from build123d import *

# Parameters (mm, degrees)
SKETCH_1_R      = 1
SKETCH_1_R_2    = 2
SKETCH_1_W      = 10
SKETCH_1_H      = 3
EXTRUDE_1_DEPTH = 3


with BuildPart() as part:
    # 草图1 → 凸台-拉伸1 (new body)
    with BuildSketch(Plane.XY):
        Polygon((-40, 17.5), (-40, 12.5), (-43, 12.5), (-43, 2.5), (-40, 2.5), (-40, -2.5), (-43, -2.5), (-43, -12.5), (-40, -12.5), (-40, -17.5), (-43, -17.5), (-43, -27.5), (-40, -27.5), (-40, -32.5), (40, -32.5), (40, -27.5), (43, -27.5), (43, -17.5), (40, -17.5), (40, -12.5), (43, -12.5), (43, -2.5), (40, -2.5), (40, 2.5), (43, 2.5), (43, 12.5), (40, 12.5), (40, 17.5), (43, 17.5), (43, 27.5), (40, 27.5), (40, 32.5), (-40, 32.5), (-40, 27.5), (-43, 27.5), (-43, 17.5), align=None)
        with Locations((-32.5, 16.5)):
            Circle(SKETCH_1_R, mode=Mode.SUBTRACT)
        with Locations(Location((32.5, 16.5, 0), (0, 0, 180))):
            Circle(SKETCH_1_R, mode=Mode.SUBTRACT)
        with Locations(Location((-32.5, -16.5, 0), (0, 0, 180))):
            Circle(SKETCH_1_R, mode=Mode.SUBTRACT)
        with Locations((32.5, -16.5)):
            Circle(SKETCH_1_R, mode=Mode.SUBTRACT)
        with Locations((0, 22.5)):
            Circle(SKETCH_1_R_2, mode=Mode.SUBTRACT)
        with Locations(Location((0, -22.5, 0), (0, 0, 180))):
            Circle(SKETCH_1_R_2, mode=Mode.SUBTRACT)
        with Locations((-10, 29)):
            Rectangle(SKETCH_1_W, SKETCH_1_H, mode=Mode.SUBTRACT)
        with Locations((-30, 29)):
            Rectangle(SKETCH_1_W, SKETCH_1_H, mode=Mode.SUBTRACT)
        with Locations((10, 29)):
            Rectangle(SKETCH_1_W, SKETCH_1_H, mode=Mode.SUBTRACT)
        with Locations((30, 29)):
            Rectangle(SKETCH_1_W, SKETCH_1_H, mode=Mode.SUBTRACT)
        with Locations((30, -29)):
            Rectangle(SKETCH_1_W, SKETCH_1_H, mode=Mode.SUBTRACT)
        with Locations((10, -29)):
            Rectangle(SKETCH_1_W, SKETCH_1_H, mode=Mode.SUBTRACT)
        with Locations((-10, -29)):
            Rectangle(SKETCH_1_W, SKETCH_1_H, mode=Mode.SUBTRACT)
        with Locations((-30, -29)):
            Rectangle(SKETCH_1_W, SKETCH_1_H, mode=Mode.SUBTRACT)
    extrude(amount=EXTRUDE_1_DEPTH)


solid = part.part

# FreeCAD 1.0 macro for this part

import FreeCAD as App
import Part
import Sketcher
from FreeCAD import Vector
Q = App.Units.Quantity

doc = App.newDocument("Part")
params = doc.addObject("Spreadsheet::Sheet", "Params")
for row, (alias, value) in enumerate([
    ("sketch1_diameter", "2 mm"),
    ("sketch1_diameter2", "4 mm"),
    ("sketch1_width", "3 mm"),
    ("sketch1_width2", "80 mm"),
    ("sketch1_width3", "10 mm"),
    ("pad1_length", "3 mm"),
], start=1):
    params.set(f"A{row}", alias)
    params.set(f"B{row}", "=" + value)
    params.setAlias(f"B{row}", alias)

body = doc.addObject("PartDesign::Body", "Body")

# Sketch on XY plane
sketch1 = doc.addObject("Sketcher::SketchObject", "Sketch")
body.addObject(sketch1)
sketch1.AttachmentSupport = (doc.XY_Plane, [""])
sketch1.MapMode = "FlatFace"
sketch1.addGeometry([
    Part.LineSegment(Vector(-40, 17.5, 0), Vector(-40, 12.5, 0)),  # 0
    Part.LineSegment(Vector(-40, 12.5, 0), Vector(-43, 12.5, 0)),  # 1
    Part.LineSegment(Vector(-43, 12.5, 0), Vector(-43, 2.5, 0)),  # 2
    Part.LineSegment(Vector(-43, 2.5, 0), Vector(-40, 2.5, 0)),  # 3
    Part.LineSegment(Vector(-40, 2.5, 0), Vector(-40, -2.5, 0)),  # 4
    Part.LineSegment(Vector(-40, -2.5, 0), Vector(-43, -2.5, 0)),  # 5
    Part.LineSegment(Vector(-43, -2.5, 0), Vector(-43, -12.5, 0)),  # 6
    Part.LineSegment(Vector(-43, -12.5, 0), Vector(-40, -12.5, 0)),  # 7
    Part.LineSegment(Vector(-40, -12.5, 0), Vector(-40, -17.5, 0)),  # 8
    Part.LineSegment(Vector(-40, -17.5, 0), Vector(-43, -17.5, 0)),  # 9
    Part.LineSegment(Vector(-43, -17.5, 0), Vector(-43, -27.5, 0)),  # 10
    Part.LineSegment(Vector(-43, -27.5, 0), Vector(-40, -27.5, 0)),  # 11
    Part.LineSegment(Vector(-40, -27.5, 0), Vector(-40, -32.5, 0)),  # 12
    Part.LineSegment(Vector(-40, -32.5, 0), Vector(40, -32.5, 0)),  # 13
    Part.LineSegment(Vector(40, -32.5, 0), Vector(40, -27.5, 0)),  # 14
    Part.LineSegment(Vector(40, -27.5, 0), Vector(43, -27.5, 0)),  # 15
    Part.LineSegment(Vector(43, -27.5, 0), Vector(43, -17.5, 0)),  # 16
    Part.LineSegment(Vector(43, -17.5, 0), Vector(40, -17.5, 0)),  # 17
    Part.LineSegment(Vector(40, -17.5, 0), Vector(40, -12.5, 0)),  # 18
    Part.LineSegment(Vector(40, -12.5, 0), Vector(43, -12.5, 0)),  # 19
    Part.LineSegment(Vector(43, -12.5, 0), Vector(43, -2.5, 0)),  # 20
    Part.LineSegment(Vector(43, -2.5, 0), Vector(40, -2.5, 0)),  # 21
    Part.LineSegment(Vector(40, -2.5, 0), Vector(40, 2.5, 0)),  # 22
    Part.LineSegment(Vector(40, 2.5, 0), Vector(43, 2.5, 0)),  # 23
    Part.LineSegment(Vector(43, 2.5, 0), Vector(43, 12.5, 0)),  # 24
    Part.LineSegment(Vector(43, 12.5, 0), Vector(40, 12.5, 0)),  # 25
    Part.LineSegment(Vector(40, 12.5, 0), Vector(40, 17.5, 0)),  # 26
    Part.LineSegment(Vector(40, 17.5, 0), Vector(43, 17.5, 0)),  # 27
    Part.LineSegment(Vector(43, 17.5, 0), Vector(43, 27.5, 0)),  # 28
    Part.LineSegment(Vector(43, 27.5, 0), Vector(40, 27.5, 0)),  # 29
    Part.LineSegment(Vector(40, 27.5, 0), Vector(40, 32.5, 0)),  # 30
    Part.LineSegment(Vector(40, 32.5, 0), Vector(-40, 32.5, 0)),  # 31
    Part.LineSegment(Vector(-40, 32.5, 0), Vector(-40, 27.5, 0)),  # 32
    Part.LineSegment(Vector(-40, 27.5, 0), Vector(-43, 27.5, 0)),  # 33
    Part.LineSegment(Vector(-43, 27.5, 0), Vector(-43, 17.5, 0)),  # 34
    Part.LineSegment(Vector(-43, 17.5, 0), Vector(-40, 17.5, 0)),  # 35
    Part.LineSegment(Vector(-25, -30.5, 0), Vector(-35, -30.5, 0)),  # 36
    Part.LineSegment(Vector(-35, -30.5, 0), Vector(-35, -27.5, 0)),  # 37
    Part.LineSegment(Vector(-35, -27.5, 0), Vector(-25, -27.5, 0)),  # 38
    Part.LineSegment(Vector(-25, -27.5, 0), Vector(-25, -30.5, 0)),  # 39
    Part.Circle(Vector(-32.5, -16.5, 0), Vector(0, 0, 1), 1),  # 40
    Part.LineSegment(Vector(-5, -30.5, 0), Vector(-15, -30.5, 0)),  # 41
    Part.LineSegment(Vector(-15, -30.5, 0), Vector(-15, -27.5, 0)),  # 42
    Part.LineSegment(Vector(-15, -27.5, 0), Vector(-5, -27.5, 0)),  # 43
    Part.LineSegment(Vector(-5, -27.5, 0), Vector(-5, -30.5, 0)),  # 44
    Part.LineSegment(Vector(15, -30.5, 0), Vector(5, -30.5, 0)),  # 45
    Part.LineSegment(Vector(5, -30.5, 0), Vector(5, -27.5, 0)),  # 46
    Part.LineSegment(Vector(5, -27.5, 0), Vector(15, -27.5, 0)),  # 47
    Part.LineSegment(Vector(15, -27.5, 0), Vector(15, -30.5, 0)),  # 48
    Part.Circle(Vector(0, -22.5, 0), Vector(0, 0, 1), 2),  # 49
    Part.LineSegment(Vector(35, -30.5, 0), Vector(25, -30.5, 0)),  # 50
    Part.LineSegment(Vector(25, -30.5, 0), Vector(25, -27.5, 0)),  # 51
    Part.LineSegment(Vector(25, -27.5, 0), Vector(35, -27.5, 0)),  # 52
    Part.LineSegment(Vector(35, -27.5, 0), Vector(35, -30.5, 0)),  # 53
    Part.Circle(Vector(32.5, -16.5, 0), Vector(0, 0, 1), 1),  # 54
    Part.Circle(Vector(-32.5, 16.5, 0), Vector(0, 0, 1), 1),  # 55
    Part.LineSegment(Vector(-25, 27.5, 0), Vector(-35, 27.5, 0)),  # 56
    Part.LineSegment(Vector(-35, 27.5, 0), Vector(-35, 30.5, 0)),  # 57
    Part.LineSegment(Vector(-35, 30.5, 0), Vector(-25, 30.5, 0)),  # 58
    Part.LineSegment(Vector(-25, 30.5, 0), Vector(-25, 27.5, 0)),  # 59
    Part.LineSegment(Vector(-5, 27.5, 0), Vector(-15, 27.5, 0)),  # 60
    Part.LineSegment(Vector(-15, 27.5, 0), Vector(-15, 30.5, 0)),  # 61
    Part.LineSegment(Vector(-15, 30.5, 0), Vector(-5, 30.5, 0)),  # 62
    Part.LineSegment(Vector(-5, 30.5, 0), Vector(-5, 27.5, 0)),  # 63
    Part.Circle(Vector(0, 22.5, 0), Vector(0, 0, 1), 2),  # 64
    Part.LineSegment(Vector(15, 27.5, 0), Vector(5, 27.5, 0)),  # 65
    Part.LineSegment(Vector(5, 27.5, 0), Vector(5, 30.5, 0)),  # 66
    Part.LineSegment(Vector(5, 30.5, 0), Vector(15, 30.5, 0)),  # 67
    Part.LineSegment(Vector(15, 30.5, 0), Vector(15, 27.5, 0)),  # 68
    Part.Circle(Vector(32.5, 16.5, 0), Vector(0, 0, 1), 1),  # 69
    Part.LineSegment(Vector(35, 27.5, 0), Vector(25, 27.5, 0)),  # 70
    Part.LineSegment(Vector(25, 27.5, 0), Vector(25, 30.5, 0)),  # 71
    Part.LineSegment(Vector(25, 30.5, 0), Vector(35, 30.5, 0)),  # 72
    Part.LineSegment(Vector(35, 30.5, 0), Vector(35, 27.5, 0)),  # 73
], False)
sketch1.addConstraint([
    Sketcher.Constraint("Coincident", 0, 2, 1, 1),
    Sketcher.Constraint("Coincident", 1, 2, 2, 1),
    Sketcher.Constraint("Coincident", 2, 2, 3, 1),
    Sketcher.Constraint("Coincident", 3, 2, 4, 1),
    Sketcher.Constraint("Coincident", 4, 2, 5, 1),
    Sketcher.Constraint("Coincident", 5, 2, 6, 1),
    Sketcher.Constraint("Coincident", 6, 2, 7, 1),
    Sketcher.Constraint("Coincident", 7, 2, 8, 1),
    Sketcher.Constraint("Coincident", 8, 2, 9, 1),
    Sketcher.Constraint("Coincident", 9, 2, 10, 1),
    Sketcher.Constraint("Coincident", 10, 2, 11, 1),
    Sketcher.Constraint("Coincident", 11, 2, 12, 1),
    Sketcher.Constraint("Coincident", 12, 2, 13, 1),
    Sketcher.Constraint("Coincident", 13, 2, 14, 1),
    Sketcher.Constraint("Coincident", 14, 2, 15, 1),
    Sketcher.Constraint("Coincident", 15, 2, 16, 1),
    Sketcher.Constraint("Coincident", 16, 2, 17, 1),
    Sketcher.Constraint("Coincident", 17, 2, 18, 1),
    Sketcher.Constraint("Coincident", 18, 2, 19, 1),
    Sketcher.Constraint("Coincident", 19, 2, 20, 1),
    Sketcher.Constraint("Coincident", 20, 2, 21, 1),
    Sketcher.Constraint("Coincident", 21, 2, 22, 1),
    Sketcher.Constraint("Coincident", 22, 2, 23, 1),
    Sketcher.Constraint("Coincident", 23, 2, 24, 1),
    Sketcher.Constraint("Coincident", 24, 2, 25, 1),
    Sketcher.Constraint("Coincident", 25, 2, 26, 1),
    Sketcher.Constraint("Coincident", 26, 2, 27, 1),
    Sketcher.Constraint("Coincident", 27, 2, 28, 1),
    Sketcher.Constraint("Coincident", 28, 2, 29, 1),
    Sketcher.Constraint("Coincident", 29, 2, 30, 1),
    Sketcher.Constraint("Coincident", 30, 2, 31, 1),
    Sketcher.Constraint("Coincident", 31, 2, 32, 1),
    Sketcher.Constraint("Coincident", 32, 2, 33, 1),
    Sketcher.Constraint("Coincident", 33, 2, 34, 1),
    Sketcher.Constraint("Coincident", 34, 2, 35, 1),
    Sketcher.Constraint("Coincident", 35, 2, 0, 1),
    Sketcher.Constraint("Coincident", 36, 2, 37, 1),
    Sketcher.Constraint("Coincident", 37, 2, 38, 1),
    Sketcher.Constraint("Coincident", 38, 2, 39, 1),
    Sketcher.Constraint("Coincident", 39, 2, 36, 1),
    Sketcher.Constraint("Coincident", 41, 2, 42, 1),
    Sketcher.Constraint("Coincident", 42, 2, 43, 1),
    Sketcher.Constraint("Coincident", 43, 2, 44, 1),
    Sketcher.Constraint("Coincident", 44, 2, 41, 1),
    Sketcher.Constraint("Coincident", 45, 2, 46, 1),
    Sketcher.Constraint("Coincident", 46, 2, 47, 1),
    Sketcher.Constraint("Coincident", 47, 2, 48, 1),
    Sketcher.Constraint("Coincident", 48, 2, 45, 1),
    Sketcher.Constraint("Coincident", 50, 2, 51, 1),
    Sketcher.Constraint("Coincident", 51, 2, 52, 1),
    Sketcher.Constraint("Coincident", 52, 2, 53, 1),
    Sketcher.Constraint("Coincident", 53, 2, 50, 1),
    Sketcher.Constraint("Coincident", 56, 2, 57, 1),
    Sketcher.Constraint("Coincident", 57, 2, 58, 1),
    Sketcher.Constraint("Coincident", 58, 2, 59, 1),
    Sketcher.Constraint("Coincident", 59, 2, 56, 1),
    Sketcher.Constraint("Coincident", 60, 2, 61, 1),
    Sketcher.Constraint("Coincident", 61, 2, 62, 1),
    Sketcher.Constraint("Coincident", 62, 2, 63, 1),
    Sketcher.Constraint("Coincident", 63, 2, 60, 1),
    Sketcher.Constraint("Coincident", 65, 2, 66, 1),
    Sketcher.Constraint("Coincident", 66, 2, 67, 1),
    Sketcher.Constraint("Coincident", 67, 2, 68, 1),
    Sketcher.Constraint("Coincident", 68, 2, 65, 1),
    Sketcher.Constraint("Coincident", 70, 2, 71, 1),
    Sketcher.Constraint("Coincident", 71, 2, 72, 1),
    Sketcher.Constraint("Coincident", 72, 2, 73, 1),
    Sketcher.Constraint("Coincident", 73, 2, 70, 1),
    Sketcher.Constraint("Vertical", 0),
    Sketcher.Constraint("Horizontal", 1),
    Sketcher.Constraint("Vertical", 2),
    Sketcher.Constraint("Horizontal", 3),
    Sketcher.Constraint("Vertical", 4),
    Sketcher.Constraint("Horizontal", 5),
    Sketcher.Constraint("Vertical", 6),
    Sketcher.Constraint("Horizontal", 7),
    Sketcher.Constraint("Vertical", 8),
    Sketcher.Constraint("Horizontal", 9),
    Sketcher.Constraint("Vertical", 10),
    Sketcher.Constraint("Horizontal", 11),
    Sketcher.Constraint("Vertical", 12),
    Sketcher.Constraint("Horizontal", 13),
    Sketcher.Constraint("Vertical", 14),
    Sketcher.Constraint("Horizontal", 15),
    Sketcher.Constraint("Vertical", 16),
    Sketcher.Constraint("Horizontal", 17),
    Sketcher.Constraint("Vertical", 18),
    Sketcher.Constraint("Horizontal", 19),
    Sketcher.Constraint("Vertical", 20),
    Sketcher.Constraint("Horizontal", 21),
    Sketcher.Constraint("Vertical", 22),
    Sketcher.Constraint("Horizontal", 23),
    Sketcher.Constraint("Vertical", 24),
    Sketcher.Constraint("Horizontal", 25),
    Sketcher.Constraint("Vertical", 26),
    Sketcher.Constraint("Horizontal", 27),
    Sketcher.Constraint("Vertical", 28),
    Sketcher.Constraint("Horizontal", 29),
    Sketcher.Constraint("Vertical", 30),
    Sketcher.Constraint("Horizontal", 31),
    Sketcher.Constraint("Vertical", 32),
    Sketcher.Constraint("Horizontal", 33),
    Sketcher.Constraint("Vertical", 34),
    Sketcher.Constraint("Horizontal", 35),
    Sketcher.Constraint("Horizontal", 36),
    Sketcher.Constraint("Vertical", 37),
    Sketcher.Constraint("Horizontal", 38),
    Sketcher.Constraint("Vertical", 39),
    Sketcher.Constraint("Horizontal", 41),
    Sketcher.Constraint("Vertical", 42),
    Sketcher.Constraint("Horizontal", 43),
    Sketcher.Constraint("Vertical", 44),
    Sketcher.Constraint("Horizontal", 45),
    Sketcher.Constraint("Vertical", 46),
    Sketcher.Constraint("Horizontal", 47),
    Sketcher.Constraint("Vertical", 48),
    Sketcher.Constraint("Horizontal", 50),
    Sketcher.Constraint("Vertical", 51),
    Sketcher.Constraint("Horizontal", 52),
    Sketcher.Constraint("Vertical", 53),
    Sketcher.Constraint("Horizontal", 56),
    Sketcher.Constraint("Vertical", 57),
    Sketcher.Constraint("Horizontal", 58),
    Sketcher.Constraint("Vertical", 59),
    Sketcher.Constraint("Horizontal", 60),
    Sketcher.Constraint("Vertical", 61),
    Sketcher.Constraint("Horizontal", 62),
    Sketcher.Constraint("Vertical", 63),
    Sketcher.Constraint("Horizontal", 65),
    Sketcher.Constraint("Vertical", 66),
    Sketcher.Constraint("Horizontal", 67),
    Sketcher.Constraint("Vertical", 68),
    Sketcher.Constraint("Horizontal", 70),
    Sketcher.Constraint("Vertical", 71),
    Sketcher.Constraint("Horizontal", 72),
    Sketcher.Constraint("Vertical", 73),
    Sketcher.Constraint("Equal", 40, 54),
    Sketcher.Constraint("Equal", 54, 55),
    Sketcher.Constraint("Equal", 49, 64),
    Sketcher.Constraint("Equal", 55, 69),
    Sketcher.Constraint("Symmetric", 54, 3, 55, 3, -1, 1),
    Sketcher.Constraint("Symmetric", 49, 3, 64, 3, -1, 1),
    Sketcher.Constraint("Symmetric", 40, 3, 69, 3, -1, 1),
    Sketcher.Constraint("Symmetric", 0, 2, 18, 2, -1, 1),
    Sketcher.Constraint("Symmetric", 2, 2, 20, 2, -1, 1),
    Sketcher.Constraint("Symmetric", 4, 2, 22, 2, -1, 1),
    Sketcher.Constraint("Symmetric", 6, 2, 24, 2, -1, 1),
    Sketcher.Constraint("Symmetric", 8, 2, 26, 2, -1, 1),
    Sketcher.Constraint("Symmetric", 10, 2, 28, 2, -1, 1),
    Sketcher.Constraint("Symmetric", 12, 2, 30, 2, -1, 1),
    Sketcher.Constraint("Symmetric", 14, 2, 32, 2, -1, 1),
    Sketcher.Constraint("Symmetric", 16, 2, 34, 2, -1, 1),
    Sketcher.Constraint("Symmetric", 52, 2, 56, 2, -1, 1),
    Sketcher.Constraint("Symmetric", 50, 2, 58, 2, -1, 1),
    Sketcher.Constraint("Symmetric", 47, 2, 60, 2, -1, 1),
    Sketcher.Constraint("Symmetric", 45, 2, 62, 2, -1, 1),
    Sketcher.Constraint("Symmetric", 43, 2, 65, 2, -1, 1),
    Sketcher.Constraint("Symmetric", 41, 2, 67, 2, -1, 1),
    Sketcher.Constraint("Symmetric", 38, 2, 70, 2, -1, 1),
    Sketcher.Constraint("Symmetric", 36, 2, 72, 2, -1, 1),
    Sketcher.Constraint("Symmetric", 40, 3, 54, 3, -2),
    Sketcher.Constraint("Symmetric", 11, 2, 14, 2, -2),
    Sketcher.Constraint("Symmetric", 9, 2, 16, 2, -2),
    Sketcher.Constraint("Symmetric", 7, 2, 18, 2, -2),
    Sketcher.Constraint("Symmetric", 5, 2, 20, 2, -2),
    Sketcher.Constraint("Symmetric", 44, 2, 45, 2, -2),
    Sketcher.Constraint("Symmetric", 42, 2, 47, 2, -2),
    Sketcher.Constraint("Symmetric", 39, 2, 50, 2, -2),
    Sketcher.Constraint("Symmetric", 37, 2, 52, 2, -2),
    Sketcher.Constraint("PointOnObject", 49, 3, -2),
    Sketcher.Constraint("Horizontal", 15, 2, 37, 2),
    Sketcher.Constraint("Horizontal", 39, 2, 41, 2),
    Sketcher.Constraint("Horizontal", 38, 2, 42, 2),
    Sketcher.Constraint("Vertical", 0, 2, 3, 2),
    Sketcher.Constraint("Vertical", 6, 2, 9, 2),
    Sketcher.Constraint("Vertical", 8, 2, 11, 2),
    Sketcher.Constraint("Equal", 38, 41),
    Sketcher.Constraint("Equal", 72, 2),
    Sketcher.Constraint("Equal", 0, 4),
    Sketcher.Constraint("Equal", 6, 10),
    Sketcher.Constraint("Equal", 8, 12),
    Sketcher.Constraint("Equal", 35, 37),
    Sketcher.Constraint("Diameter", 40, Q("2 mm")),
    Sketcher.Constraint("Diameter", 49, Q("4 mm")),
    Sketcher.Constraint("DistanceX", 1, 2, 1, 1, Q("3 mm")),
    Sketcher.Constraint("DistanceX", 13, 1, 13, 2, Q("80 mm")),
    Sketcher.Constraint("DistanceX", 36, 2, 36, 1, Q("10 mm")),
    Sketcher.Constraint("DistanceY", 0, 2, 0, 1, Q("5 mm")),
    Sketcher.Constraint("DistanceX", 36, 2, -1, 1, Q("35 mm")),
    Sketcher.Constraint("DistanceX", 41, 2, -1, 1, Q("15 mm")),
    Sketcher.Constraint("DistanceX", 40, 3, -1, 1, Q("32.5 mm")),
    Sketcher.Constraint("DistanceY", 40, 3, -1, 1, Q("16.5 mm")),
    Sketcher.Constraint("DistanceY", 49, 3, -1, 1, Q("22.5 mm")),
])
sketch1.setExpression("Constraints[182]", "Params.sketch1_diameter")
sketch1.setExpression("Constraints[183]", "Params.sketch1_diameter2")
sketch1.setExpression("Constraints[184]", "Params.sketch1_width")
sketch1.setExpression("Constraints[185]", "Params.sketch1_width2")
sketch1.setExpression("Constraints[186]", "Params.sketch1_width3")
pad1 = doc.addObject("PartDesign::Pad", "Pad")
body.addObject(pad1)
pad1.Profile = sketch1
pad1.setExpression("Length", "Params.pad1_length")

doc.recompute()
